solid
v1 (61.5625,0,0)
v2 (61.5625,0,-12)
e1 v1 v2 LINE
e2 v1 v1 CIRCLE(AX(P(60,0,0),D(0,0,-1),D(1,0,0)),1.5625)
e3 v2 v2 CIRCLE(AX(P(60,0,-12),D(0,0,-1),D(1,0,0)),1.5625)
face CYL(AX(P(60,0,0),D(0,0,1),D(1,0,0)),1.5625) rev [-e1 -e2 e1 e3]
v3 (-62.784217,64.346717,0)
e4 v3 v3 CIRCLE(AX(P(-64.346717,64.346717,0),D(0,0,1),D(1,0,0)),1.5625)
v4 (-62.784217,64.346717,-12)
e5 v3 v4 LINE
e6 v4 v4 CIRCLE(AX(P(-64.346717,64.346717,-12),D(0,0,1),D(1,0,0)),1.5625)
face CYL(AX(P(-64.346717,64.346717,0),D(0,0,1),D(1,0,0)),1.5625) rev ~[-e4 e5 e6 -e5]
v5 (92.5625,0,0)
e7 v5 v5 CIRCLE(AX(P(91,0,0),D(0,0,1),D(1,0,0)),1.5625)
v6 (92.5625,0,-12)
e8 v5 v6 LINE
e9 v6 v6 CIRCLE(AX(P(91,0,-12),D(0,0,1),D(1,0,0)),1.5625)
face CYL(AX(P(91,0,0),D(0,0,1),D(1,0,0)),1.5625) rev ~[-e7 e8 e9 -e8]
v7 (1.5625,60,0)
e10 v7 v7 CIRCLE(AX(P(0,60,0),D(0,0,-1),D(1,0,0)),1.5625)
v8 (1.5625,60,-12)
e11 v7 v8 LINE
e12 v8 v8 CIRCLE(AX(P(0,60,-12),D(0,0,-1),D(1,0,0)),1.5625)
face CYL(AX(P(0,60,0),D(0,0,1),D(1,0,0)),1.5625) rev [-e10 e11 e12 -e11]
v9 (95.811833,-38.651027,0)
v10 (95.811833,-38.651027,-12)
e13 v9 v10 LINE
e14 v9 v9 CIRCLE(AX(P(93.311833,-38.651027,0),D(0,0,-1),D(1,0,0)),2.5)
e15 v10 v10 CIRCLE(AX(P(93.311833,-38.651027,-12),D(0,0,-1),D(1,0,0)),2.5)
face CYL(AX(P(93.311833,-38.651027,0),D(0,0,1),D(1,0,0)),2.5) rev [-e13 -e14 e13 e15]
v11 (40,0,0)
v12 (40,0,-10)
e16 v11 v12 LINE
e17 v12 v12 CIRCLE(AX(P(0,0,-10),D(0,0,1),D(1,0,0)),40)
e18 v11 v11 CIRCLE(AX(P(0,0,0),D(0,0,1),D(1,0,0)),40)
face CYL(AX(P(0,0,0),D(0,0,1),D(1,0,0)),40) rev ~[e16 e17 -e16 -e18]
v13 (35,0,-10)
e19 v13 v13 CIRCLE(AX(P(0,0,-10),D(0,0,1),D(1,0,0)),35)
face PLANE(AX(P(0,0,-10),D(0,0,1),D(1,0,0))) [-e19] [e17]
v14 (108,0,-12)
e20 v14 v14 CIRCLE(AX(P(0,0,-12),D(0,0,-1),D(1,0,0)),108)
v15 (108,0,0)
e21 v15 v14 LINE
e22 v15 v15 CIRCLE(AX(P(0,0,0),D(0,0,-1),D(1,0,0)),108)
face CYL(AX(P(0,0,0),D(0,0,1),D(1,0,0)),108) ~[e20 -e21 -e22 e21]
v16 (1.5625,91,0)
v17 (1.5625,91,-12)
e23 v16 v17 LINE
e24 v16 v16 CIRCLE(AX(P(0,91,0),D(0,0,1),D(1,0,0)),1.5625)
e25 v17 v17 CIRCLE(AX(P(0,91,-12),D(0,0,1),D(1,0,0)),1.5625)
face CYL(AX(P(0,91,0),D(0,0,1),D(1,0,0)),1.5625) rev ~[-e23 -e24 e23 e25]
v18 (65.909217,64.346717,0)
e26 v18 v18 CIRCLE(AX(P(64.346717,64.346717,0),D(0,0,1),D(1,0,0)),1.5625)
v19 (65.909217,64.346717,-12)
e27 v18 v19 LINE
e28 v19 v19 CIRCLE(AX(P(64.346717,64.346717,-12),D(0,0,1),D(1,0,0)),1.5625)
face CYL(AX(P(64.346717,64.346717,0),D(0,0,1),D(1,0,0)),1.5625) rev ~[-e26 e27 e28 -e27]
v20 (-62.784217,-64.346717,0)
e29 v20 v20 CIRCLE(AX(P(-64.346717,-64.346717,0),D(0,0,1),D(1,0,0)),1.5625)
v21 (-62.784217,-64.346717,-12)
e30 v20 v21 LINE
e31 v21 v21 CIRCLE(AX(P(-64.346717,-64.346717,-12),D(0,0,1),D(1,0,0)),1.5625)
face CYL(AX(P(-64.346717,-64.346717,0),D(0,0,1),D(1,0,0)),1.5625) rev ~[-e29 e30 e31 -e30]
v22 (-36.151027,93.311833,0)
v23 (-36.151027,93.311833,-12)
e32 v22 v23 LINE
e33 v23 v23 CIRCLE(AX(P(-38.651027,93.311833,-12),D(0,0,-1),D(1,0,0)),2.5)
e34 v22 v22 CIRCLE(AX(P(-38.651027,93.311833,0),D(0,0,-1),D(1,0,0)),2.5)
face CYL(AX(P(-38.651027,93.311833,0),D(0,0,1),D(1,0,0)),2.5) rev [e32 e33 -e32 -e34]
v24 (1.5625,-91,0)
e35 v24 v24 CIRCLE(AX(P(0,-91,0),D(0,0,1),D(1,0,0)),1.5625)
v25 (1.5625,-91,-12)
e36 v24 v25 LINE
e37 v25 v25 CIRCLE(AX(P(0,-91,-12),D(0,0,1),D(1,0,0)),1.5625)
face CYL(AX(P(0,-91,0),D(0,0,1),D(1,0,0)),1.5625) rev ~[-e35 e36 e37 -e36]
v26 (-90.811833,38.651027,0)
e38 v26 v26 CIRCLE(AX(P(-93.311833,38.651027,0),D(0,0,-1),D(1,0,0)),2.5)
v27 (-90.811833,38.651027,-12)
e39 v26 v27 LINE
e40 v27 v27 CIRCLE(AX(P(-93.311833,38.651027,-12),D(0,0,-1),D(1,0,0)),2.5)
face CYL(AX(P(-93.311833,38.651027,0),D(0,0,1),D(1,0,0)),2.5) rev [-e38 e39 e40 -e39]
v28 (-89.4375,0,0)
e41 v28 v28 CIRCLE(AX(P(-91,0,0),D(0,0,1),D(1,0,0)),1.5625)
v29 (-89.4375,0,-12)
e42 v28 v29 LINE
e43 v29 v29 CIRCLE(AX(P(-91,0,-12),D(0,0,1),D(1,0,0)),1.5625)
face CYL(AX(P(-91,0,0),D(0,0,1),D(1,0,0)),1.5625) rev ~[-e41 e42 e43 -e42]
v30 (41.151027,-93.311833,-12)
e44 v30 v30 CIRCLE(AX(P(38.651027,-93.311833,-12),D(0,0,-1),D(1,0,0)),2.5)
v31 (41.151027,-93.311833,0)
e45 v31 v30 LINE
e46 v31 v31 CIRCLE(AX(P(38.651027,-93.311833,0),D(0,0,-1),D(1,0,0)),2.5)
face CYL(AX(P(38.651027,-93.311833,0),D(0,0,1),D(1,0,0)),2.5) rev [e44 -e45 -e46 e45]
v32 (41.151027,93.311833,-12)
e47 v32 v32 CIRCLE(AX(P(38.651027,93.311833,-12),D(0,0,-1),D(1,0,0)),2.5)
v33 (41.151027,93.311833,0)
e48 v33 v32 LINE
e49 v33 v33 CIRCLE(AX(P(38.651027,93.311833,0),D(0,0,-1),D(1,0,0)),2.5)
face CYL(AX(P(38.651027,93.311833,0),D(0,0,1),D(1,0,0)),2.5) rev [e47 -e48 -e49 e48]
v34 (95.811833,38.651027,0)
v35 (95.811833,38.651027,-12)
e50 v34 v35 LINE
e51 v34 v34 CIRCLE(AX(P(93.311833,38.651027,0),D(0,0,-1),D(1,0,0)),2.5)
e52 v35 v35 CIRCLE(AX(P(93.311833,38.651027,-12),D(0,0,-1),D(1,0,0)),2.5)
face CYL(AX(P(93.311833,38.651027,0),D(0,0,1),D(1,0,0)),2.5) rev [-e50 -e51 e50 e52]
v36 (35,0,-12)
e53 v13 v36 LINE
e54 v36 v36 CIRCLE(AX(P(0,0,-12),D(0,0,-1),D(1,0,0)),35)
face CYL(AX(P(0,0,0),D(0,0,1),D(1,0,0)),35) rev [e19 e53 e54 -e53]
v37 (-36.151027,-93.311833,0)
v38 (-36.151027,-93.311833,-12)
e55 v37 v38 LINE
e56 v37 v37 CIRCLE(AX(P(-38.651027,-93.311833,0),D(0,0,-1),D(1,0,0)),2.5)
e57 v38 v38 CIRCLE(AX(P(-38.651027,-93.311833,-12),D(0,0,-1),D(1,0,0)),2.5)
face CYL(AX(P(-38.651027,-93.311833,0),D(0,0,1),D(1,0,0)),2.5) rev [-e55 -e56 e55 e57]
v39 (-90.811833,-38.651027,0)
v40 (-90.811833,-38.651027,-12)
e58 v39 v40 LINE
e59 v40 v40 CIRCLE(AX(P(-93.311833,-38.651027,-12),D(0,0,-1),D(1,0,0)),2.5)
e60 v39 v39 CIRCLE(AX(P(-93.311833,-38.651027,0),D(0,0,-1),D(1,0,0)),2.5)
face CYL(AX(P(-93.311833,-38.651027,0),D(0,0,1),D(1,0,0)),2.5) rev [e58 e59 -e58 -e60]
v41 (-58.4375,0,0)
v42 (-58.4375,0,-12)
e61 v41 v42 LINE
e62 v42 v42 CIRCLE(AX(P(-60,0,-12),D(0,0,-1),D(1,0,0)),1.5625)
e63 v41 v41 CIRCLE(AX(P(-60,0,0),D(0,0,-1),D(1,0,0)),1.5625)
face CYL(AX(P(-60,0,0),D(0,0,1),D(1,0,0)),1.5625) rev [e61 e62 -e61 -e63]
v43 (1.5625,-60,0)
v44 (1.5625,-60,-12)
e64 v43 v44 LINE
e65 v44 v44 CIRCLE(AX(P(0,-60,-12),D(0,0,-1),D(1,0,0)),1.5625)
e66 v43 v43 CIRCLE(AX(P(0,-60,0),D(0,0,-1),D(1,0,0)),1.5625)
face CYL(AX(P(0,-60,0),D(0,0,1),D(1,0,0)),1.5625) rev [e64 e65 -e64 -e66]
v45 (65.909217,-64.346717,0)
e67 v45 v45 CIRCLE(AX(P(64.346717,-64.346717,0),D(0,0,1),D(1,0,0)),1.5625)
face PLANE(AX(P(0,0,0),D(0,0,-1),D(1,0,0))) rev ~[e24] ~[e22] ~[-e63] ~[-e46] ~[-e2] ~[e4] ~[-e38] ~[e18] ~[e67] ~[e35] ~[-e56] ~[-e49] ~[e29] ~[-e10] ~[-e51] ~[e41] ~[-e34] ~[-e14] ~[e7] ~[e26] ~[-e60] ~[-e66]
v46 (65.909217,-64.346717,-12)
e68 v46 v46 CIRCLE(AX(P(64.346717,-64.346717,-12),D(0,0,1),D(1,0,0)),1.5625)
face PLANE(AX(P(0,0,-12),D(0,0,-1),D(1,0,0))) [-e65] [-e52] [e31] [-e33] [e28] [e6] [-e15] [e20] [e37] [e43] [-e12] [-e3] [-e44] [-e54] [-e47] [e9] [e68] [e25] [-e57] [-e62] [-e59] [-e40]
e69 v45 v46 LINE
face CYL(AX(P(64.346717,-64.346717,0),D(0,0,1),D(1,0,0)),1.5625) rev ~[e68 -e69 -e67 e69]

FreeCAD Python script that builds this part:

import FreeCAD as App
import Part
import Sketcher
from FreeCAD import Vector

doc = App.newDocument("Part")
body = doc.addObject("PartDesign::Body", "Body")

# Sketch on XY plane
sketch1 = body.newObject("Sketcher::SketchObject", "Sketch")
sketch1.AttachmentSupport = (doc.getObject("XY_Plane"), [""])
sketch1.MapMode = "FlatFace"
sketch1.addGeometry([
    Part.Circle(Vector(0, 0, 0), Vector(0, 0, 1), 108),  # 0
    Part.Circle(Vector(-38.7, 93.3, 0), Vector(0, 0, 1), 2.5),  # 1
    Part.Circle(Vector(0, 60, 0), Vector(0, 0, 1), 1.6),  # 2
    Part.Circle(Vector(-93.3, 38.7, 0), Vector(0, 0, 1), 2.5),  # 3
    Part.Circle(Vector(-60, 0, 0), Vector(0, 0, 1), 1.6),  # 4
    Part.Circle(Vector(38.7, 93.3, 0), Vector(0, 0, 1), 2.5),  # 5
    Part.Circle(Vector(93.3, 38.7, 0), Vector(0, 0, 1), 2.5),  # 6
    Part.Circle(Vector(60, 0, 0), Vector(0, 0, 1), 1.6),  # 7
    Part.Circle(Vector(-93.3, -38.7, 0), Vector(0, 0, 1), 2.5),  # 8
    Part.Circle(Vector(0, 0, 0), Vector(0, 0, 1), 35),  # 9
    Part.Circle(Vector(0, -60, 0), Vector(0, 0, 1), 1.6),  # 10
    Part.Circle(Vector(-38.7, -93.3, 0), Vector(0, 0, 1), 2.5),  # 11
    Part.Circle(Vector(93.3, -38.7, 0), Vector(0, 0, 1), 2.5),  # 12
    Part.Circle(Vector(38.7, -93.3, 0), Vector(0, 0, 1), 2.5),  # 13
], False)
sketch1.addConstraint([
    Sketcher.Constraint("Coincident", 0, 3, -1, 1),
    Sketcher.Constraint("Coincident", 9, 3, -1, 1),
    Sketcher.Constraint("Equal", 1, 3),
    Sketcher.Constraint("Equal", 2, 4),
    Sketcher.Constraint("Equal", 3, 5),
    Sketcher.Constraint("Equal", 5, 6),
    Sketcher.Constraint("Equal", 4, 7),
    Sketcher.Constraint("Equal", 6, 8),
    Sketcher.Constraint("Equal", 7, 10),
    Sketcher.Constraint("Equal", 8, 11),
    Sketcher.Constraint("Equal", 11, 12),
    Sketcher.Constraint("Equal", 12, 13),
    Sketcher.Constraint("Symmetric", 4, 3, 7, 3, -1, 1),
    Sketcher.Constraint("Symmetric", 6, 3, 8, 3, -1, 1),
    Sketcher.Constraint("Symmetric", 2, 3, 10, 3, -1, 1),
    Sketcher.Constraint("Symmetric", 5, 3, 11, 3, -1, 1),
    Sketcher.Constraint("Symmetric", 3, 3, 12, 3, -1, 1),
    Sketcher.Constraint("Symmetric", 1, 3, 13, 3, -1, 1),
    Sketcher.Constraint("Symmetric", 1, 3, 5, 3, -2),
    Sketcher.Constraint("Symmetric", 3, 3, 6, 3, -2),
    Sketcher.Constraint("PointOnObject", 2, 3, -2),
    Sketcher.Constraint("PointOnObject", 4, 3, -1),
    Sketcher.Constraint("Diameter", 0, 216.0),
    Sketcher.Constraint("Diameter", 1, 5.0),
    Sketcher.Constraint("Diameter", 9, 70.0),
    Sketcher.Constraint("Diameter", 2, 3.125),
    Sketcher.Constraint("DistanceY", -1, 1, 2, 3, 60.0),
    Sketcher.Constraint("DistanceX", 4, 3, -1, 1, 60.0),
    Sketcher.Constraint("DistanceX", 3, 3, 5, 3, 131.96286),
    Sketcher.Constraint("DistanceY", 8, 3, 1, 3, 131.96286),
    Sketcher.Constraint("DistanceX", 1, 3, -1, 1, 38.651027),
    Sketcher.Constraint("DistanceY", -1, 1, 1, 3, 93.311833),
])
pad1 = body.newObject("PartDesign::Pad", "Pad")
pad1.Profile = sketch1
pad1.Length = 12
pad1.Reversed = True

# Sketch on XY plane
sketch2 = body.newObject("Sketcher::SketchObject", "Sketch001")
sketch2.AttachmentSupport = (doc.getObject("XY_Plane"), [""])
sketch2.MapMode = "FlatFace"
sketch2.addGeometry([
    Part.Circle(Vector(64.3, 64.3, 0), Vector(0, 0, 1), 1.6),  # 0
    Part.Circle(Vector(0, 91, 0), Vector(0, 0, 1), 1.6),  # 1
    Part.Circle(Vector(91, 0, 0), Vector(0, 0, 1), 1.6),  # 2
    Part.Circle(Vector(64.3, -64.3, 0), Vector(0, 0, 1), 1.6),  # 3
    Part.Circle(Vector(0, -91, 0), Vector(0, 0, 1), 1.6),  # 4
    Part.Circle(Vector(-91, 0, 0), Vector(0, 0, 1), 1.6),  # 5
    Part.Circle(Vector(-64.3, -64.3, 0), Vector(0, 0, 1), 1.6),  # 6
    Part.Circle(Vector(-64.3, 64.3, 0), Vector(0, 0, 1), 1.6),  # 7
], False)
sketch2.addConstraint([
    Sketcher.Constraint("Equal", 0, 1),
    Sketcher.Constraint("Equal", 1, 2),
    Sketcher.Constraint("Equal", 2, 3),
    Sketcher.Constraint("Equal", 3, 4),
    Sketcher.Constraint("Equal", 4, 5),
    Sketcher.Constraint("Equal", 5, 6),
    Sketcher.Constraint("Equal", 6, 7),
    Sketcher.Constraint("Symmetric", 1, 3, 4, 3, -1, 1),
    Sketcher.Constraint("Symmetric", 2, 3, 5, 3, -1, 1),
    Sketcher.Constraint("Symmetric", 0, 3, 6, 3, -1, 1),
    Sketcher.Constraint("Symmetric", 3, 3, 7, 3, -1, 1),
    Sketcher.Constraint("Symmetric", 3, 3, 6, 3, -2),
    Sketcher.Constraint("PointOnObject", 1, 3, -2),
    Sketcher.Constraint("PointOnObject", 2, 3, -1),
    Sketcher.Constraint("Diameter", 0, 3.125),
    Sketcher.Constraint("DistanceY", -1, 1, 1, 3, 91.0),
    Sketcher.Constraint("DistanceX", -1, 1, 2, 3, 91.0),
    Sketcher.Constraint("DistanceX", -1, 1, 0, 3, 64.346717),
    Sketcher.Constraint("DistanceY", -1, 1, 0, 3, 64.346717),
])
pocket1 = body.newObject("PartDesign::Pocket", "Pocket")
pocket1.Profile = sketch2
pocket1.Type = "ThroughAll"

# Sketch on XY plane
sketch3 = body.newObject("Sketcher::SketchObject", "Sketch002")
sketch3.AttachmentSupport = (doc.getObject("XY_Plane"), [""])
sketch3.MapMode = "FlatFace"
sketch3.addGeometry(Part.Circle(Vector(0, 0, 0), Vector(0, 0, 1), 40), False)
sketch3.addConstraint([
    Sketcher.Constraint("Coincident", 0, 3, -1, 1),
    Sketcher.Constraint("Diameter", 0, 80.0),
])
pocket2 = body.newObject("PartDesign::Pocket", "Pocket001")
pocket2.Profile = sketch3
pocket2.Length = 10

doc.recompute()
